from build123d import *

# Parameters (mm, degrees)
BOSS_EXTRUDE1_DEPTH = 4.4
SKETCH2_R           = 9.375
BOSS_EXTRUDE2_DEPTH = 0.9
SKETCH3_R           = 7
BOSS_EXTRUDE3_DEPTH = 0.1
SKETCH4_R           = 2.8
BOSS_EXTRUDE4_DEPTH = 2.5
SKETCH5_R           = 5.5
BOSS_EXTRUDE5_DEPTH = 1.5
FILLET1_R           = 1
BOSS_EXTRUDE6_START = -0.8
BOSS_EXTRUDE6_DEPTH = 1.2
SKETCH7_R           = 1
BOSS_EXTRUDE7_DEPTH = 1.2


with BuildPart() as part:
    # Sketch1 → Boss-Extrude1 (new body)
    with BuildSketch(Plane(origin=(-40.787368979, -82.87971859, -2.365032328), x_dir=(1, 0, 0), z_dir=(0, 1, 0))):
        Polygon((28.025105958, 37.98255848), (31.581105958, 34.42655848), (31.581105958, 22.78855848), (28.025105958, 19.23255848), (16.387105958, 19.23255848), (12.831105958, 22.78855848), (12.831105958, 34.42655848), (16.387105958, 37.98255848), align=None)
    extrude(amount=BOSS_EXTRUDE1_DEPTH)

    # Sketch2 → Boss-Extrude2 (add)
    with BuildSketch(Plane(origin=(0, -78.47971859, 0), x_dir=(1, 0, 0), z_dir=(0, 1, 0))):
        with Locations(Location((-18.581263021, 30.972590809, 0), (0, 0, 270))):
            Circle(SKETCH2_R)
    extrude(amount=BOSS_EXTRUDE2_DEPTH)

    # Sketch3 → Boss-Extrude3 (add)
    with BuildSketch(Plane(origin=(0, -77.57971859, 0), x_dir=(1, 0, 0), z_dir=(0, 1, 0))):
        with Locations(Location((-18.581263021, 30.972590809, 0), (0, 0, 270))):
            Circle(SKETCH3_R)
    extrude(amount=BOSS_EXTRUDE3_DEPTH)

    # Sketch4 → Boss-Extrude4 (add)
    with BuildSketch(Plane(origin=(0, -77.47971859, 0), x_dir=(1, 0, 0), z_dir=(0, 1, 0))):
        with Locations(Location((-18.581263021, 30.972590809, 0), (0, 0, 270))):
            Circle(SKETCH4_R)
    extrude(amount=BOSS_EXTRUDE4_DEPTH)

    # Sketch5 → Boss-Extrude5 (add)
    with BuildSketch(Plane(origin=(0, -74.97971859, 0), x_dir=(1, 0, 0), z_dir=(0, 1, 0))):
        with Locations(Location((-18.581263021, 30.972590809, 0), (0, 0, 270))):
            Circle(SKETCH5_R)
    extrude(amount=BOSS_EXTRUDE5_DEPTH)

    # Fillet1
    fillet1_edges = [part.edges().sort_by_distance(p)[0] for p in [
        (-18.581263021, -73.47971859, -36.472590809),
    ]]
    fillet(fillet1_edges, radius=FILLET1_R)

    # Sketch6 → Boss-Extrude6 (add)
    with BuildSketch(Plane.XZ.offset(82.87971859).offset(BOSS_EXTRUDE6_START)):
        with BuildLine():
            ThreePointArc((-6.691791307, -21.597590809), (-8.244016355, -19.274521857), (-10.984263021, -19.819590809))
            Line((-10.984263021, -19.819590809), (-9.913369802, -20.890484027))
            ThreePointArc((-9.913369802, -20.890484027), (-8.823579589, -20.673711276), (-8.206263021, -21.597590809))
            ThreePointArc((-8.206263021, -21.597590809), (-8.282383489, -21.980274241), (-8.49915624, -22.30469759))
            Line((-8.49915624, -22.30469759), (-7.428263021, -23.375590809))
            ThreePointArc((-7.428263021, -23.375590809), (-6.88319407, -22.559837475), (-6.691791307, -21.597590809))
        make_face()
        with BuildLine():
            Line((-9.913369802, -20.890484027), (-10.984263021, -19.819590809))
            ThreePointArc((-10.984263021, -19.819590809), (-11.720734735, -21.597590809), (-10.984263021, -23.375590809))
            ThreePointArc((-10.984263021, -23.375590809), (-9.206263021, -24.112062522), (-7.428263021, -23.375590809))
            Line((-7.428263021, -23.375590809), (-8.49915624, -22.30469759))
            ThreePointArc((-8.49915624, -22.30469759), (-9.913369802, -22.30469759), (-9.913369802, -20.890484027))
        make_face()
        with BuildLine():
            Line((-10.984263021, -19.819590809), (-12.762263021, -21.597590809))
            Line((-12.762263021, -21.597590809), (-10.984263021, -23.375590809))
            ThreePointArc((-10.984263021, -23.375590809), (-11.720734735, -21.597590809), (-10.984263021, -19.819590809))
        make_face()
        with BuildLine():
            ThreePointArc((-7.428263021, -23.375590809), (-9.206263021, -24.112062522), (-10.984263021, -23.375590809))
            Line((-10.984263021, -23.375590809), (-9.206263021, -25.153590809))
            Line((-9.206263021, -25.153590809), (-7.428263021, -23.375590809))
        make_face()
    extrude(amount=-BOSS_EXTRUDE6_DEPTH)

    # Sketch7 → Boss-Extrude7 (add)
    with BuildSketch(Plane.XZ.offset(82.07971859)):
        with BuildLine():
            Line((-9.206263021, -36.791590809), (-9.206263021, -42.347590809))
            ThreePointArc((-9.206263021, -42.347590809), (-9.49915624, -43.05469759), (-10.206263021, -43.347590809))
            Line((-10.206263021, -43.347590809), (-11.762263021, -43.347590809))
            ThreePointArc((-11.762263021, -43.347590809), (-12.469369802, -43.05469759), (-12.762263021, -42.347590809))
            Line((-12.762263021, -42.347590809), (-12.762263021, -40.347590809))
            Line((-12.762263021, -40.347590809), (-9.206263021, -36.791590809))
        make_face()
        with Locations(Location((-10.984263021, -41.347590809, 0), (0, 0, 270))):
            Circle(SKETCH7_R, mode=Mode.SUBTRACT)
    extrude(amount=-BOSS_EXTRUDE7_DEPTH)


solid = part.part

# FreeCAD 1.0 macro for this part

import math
import FreeCAD as App
import Part
import Sketcher
from FreeCAD import Vector
Q = App.Units.Quantity


def edges_at(feature, points):
    """Names of the edges that pass closest to the given points."""
    edges = feature.Shape.Edges
    near = lambda p: min(range(len(edges)), key=lambda i: edges[i].distToShape(Part.Vertex(*p))[0])
    return sorted({f"Edge{near(p) + 1}" for p in points})

doc = App.newDocument("Part")
params = doc.addObject("Spreadsheet::Sheet", "Params")
for row, (alias, value) in enumerate([
    ("pad1_length", "4.4 mm"),
    ("sketch2_diameter", "18.75 mm"),
    ("pad2_length", "0.9 mm"),
    ("sketch3_diameter", "14 mm"),
    ("pad3_length", "0.1 mm"),
    ("sketch4_diameter", "5.6 mm"),
    ("pad4_length", "2.5 mm"),
    ("sketch5_diameter", "11 mm"),
    ("pad5_length", "1.5 mm"),
    ("fillet_radius", "1 mm"),
    ("sketch6_radius", "1 mm"),
    ("pad6_length", "1.2 mm"),
    ("sketch7_diameter", "2 mm"),
    ("sketch7_height", "2 mm"),
    ("pad7_length", "1.2 mm"),
], start=1):
    params.set(f"A{row}", alias)
    params.set(f"B{row}", "=" + value)
    params.setAlias(f"B{row}", alias)

body = doc.addObject("PartDesign::Body", "Body")

sketch1 = doc.addObject("Sketcher::SketchObject", "Sketch")
body.addObject(sketch1)
sketch1.AttachmentSupport = (doc.XZ_Plane, [""])
sketch1.MapMode = "FlatFace"
sketch1.AttachmentOffset = App.Placement(Vector(0, 0, 82.879719), App.Rotation())
sketch1.addGeometry([
    Part.LineSegment(Vector(-9.206263, -36.791591, 0), Vector(-12.762263, -40.347591, 0)),
    Part.LineSegment(Vector(-12.762263, -40.347591, 0), Vector(-24.400263, -40.347591, 0)),
    Part.LineSegment(Vector(-24.400263, -40.347591, 0), Vector(-27.956263, -36.791591, 0)),
    Part.LineSegment(Vector(-27.956263, -36.791591, 0), Vector(-27.956263, -25.153591, 0)),
    Part.LineSegment(Vector(-27.956263, -25.153591, 0), Vector(-24.400263, -21.597591, 0)),
    Part.LineSegment(Vector(-24.400263, -21.597591, 0), Vector(-12.762263, -21.597591, 0)),
    Part.LineSegment(Vector(-12.762263, -21.597591, 0), Vector(-9.206263, -25.153591, 0)),
    Part.LineSegment(Vector(-9.206263, -25.153591, 0), Vector(-9.206263, -36.791591, 0)),
], False)
sketch1.addConstraint([
    Sketcher.Constraint("Coincident", 0, 2, 1, 1),
    Sketcher.Constraint("Coincident", 1, 2, 2, 1),
    Sketcher.Constraint("Coincident", 2, 2, 3, 1),
    Sketcher.Constraint("Coincident", 3, 2, 4, 1),
    Sketcher.Constraint("Coincident", 4, 2, 5, 1),
    Sketcher.Constraint("Coincident", 5, 2, 6, 1),
    Sketcher.Constraint("Coincident", 6, 2, 7, 1),
    Sketcher.Constraint("Coincident", 7, 2, 0, 1),
    Sketcher.Constraint("Horizontal", 1),
    Sketcher.Constraint("Vertical", 3),
    Sketcher.Constraint("Horizontal", 5),
    Sketcher.Constraint("Vertical", 7),
    Sketcher.Constraint("Perpendicular", 0, 2),
    Sketcher.Constraint("Perpendicular", 2, 4),
    Sketcher.Constraint("Perpendicular", 4, 6),
    Sketcher.Constraint("Horizontal", 3, 2, 6, 2),
    Sketcher.Constraint("Horizontal", 2, 2, 7, 2),
    Sketcher.Constraint("Vertical", 1, 2, 4, 2),
    Sketcher.Constraint("Vertical", 0, 2, 5, 2),
    Sketcher.Constraint("Equal", 5, 3),
    Sketcher.Constraint("DistanceX", 1, 2, 1, 1, 11.638),
    Sketcher.Constraint("DistanceY", 1, 2, 4, 2, 18.75),
    Sketcher.Constraint("DistanceY", 0, 2, -1, 1, 40.347591),
    Sketcher.Constraint("DistanceX", 0, 2, -1, 1, 12.762263),
])
pad1 = doc.addObject("PartDesign::Pad", "Pad")
body.addObject(pad1)
pad1.Profile = sketch1
pad1.setExpression("Length", "Params.pad1_length")
pad1.Reversed = True

sketch2 = doc.addObject("Sketcher::SketchObject", "Sketch001")
body.addObject(sketch2)
sketch2.AttachmentSupport = (doc.XZ_Plane, [""])
sketch2.MapMode = "FlatFace"
sketch2.AttachmentOffset = App.Placement(Vector(0, 0, 78.479719), App.Rotation())
sketch2.addGeometry(Part.Circle(Vector(-18.581263, -30.972591, 0), Vector(0, 0, 1), 9.375), False)
sketch2.addConstraint([
    Sketcher.Constraint("Diameter", 0, 18.75),
    Sketcher.Constraint("DistanceY", 0, 3, -1, 1, 30.972591),
    Sketcher.Constraint("DistanceX", 0, 3, -1, 1, 18.581263),
])
sketch2.setExpression("Constraints[0]", "Params.sketch2_diameter")
pad2 = doc.addObject("PartDesign::Pad", "Pad001")
body.addObject(pad2)
pad2.Profile = sketch2
pad2.setExpression("Length", "Params.pad2_length")
pad2.Reversed = True

sketch3 = doc.addObject("Sketcher::SketchObject", "Sketch002")
body.addObject(sketch3)
sketch3.AttachmentSupport = (doc.XZ_Plane, [""])
sketch3.MapMode = "FlatFace"
sketch3.AttachmentOffset = App.Placement(Vector(0, 0, 77.579719), App.Rotation())
sketch3.addGeometry(Part.Circle(Vector(-18.581263, -30.972591, 0), Vector(0, 0, 1), 7), False)
sketch3.addConstraint([
    Sketcher.Constraint("Diameter", 0, 14.0),
    Sketcher.Constraint("DistanceY", 0, 3, -1, 1, 30.972591),
    Sketcher.Constraint("DistanceX", 0, 3, -1, 1, 18.581263),
])
sketch3.setExpression("Constraints[0]", "Params.sketch3_diameter")
pad3 = doc.addObject("PartDesign::Pad", "Pad002")
body.addObject(pad3)
pad3.Profile = sketch3
pad3.setExpression("Length", "Params.pad3_length")
pad3.Reversed = True

sketch4 = doc.addObject("Sketcher::SketchObject", "Sketch003")
body.addObject(sketch4)
sketch4.AttachmentSupport = (doc.XZ_Plane, [""])
sketch4.MapMode = "FlatFace"
sketch4.AttachmentOffset = App.Placement(Vector(0, 0, 77.479719), App.Rotation())
sketch4.addGeometry(Part.Circle(Vector(-18.581263, -30.972591, 0), Vector(0, 0, 1), 2.8), False)
sketch4.addConstraint([
    Sketcher.Constraint("Diameter", 0, 5.6),
    Sketcher.Constraint("DistanceY", 0, 3, -1, 1, 30.972591),
    Sketcher.Constraint("DistanceX", 0, 3, -1, 1, 18.581263),
])
sketch4.setExpression("Constraints[0]", "Params.sketch4_diameter")
pad4 = doc.addObject("PartDesign::Pad", "Pad003")
body.addObject(pad4)
pad4.Profile = sketch4
pad4.setExpression("Length", "Params.pad4_length")
pad4.Reversed = True

sketch5 = doc.addObject("Sketcher::SketchObject", "Sketch004")
body.addObject(sketch5)
sketch5.AttachmentSupport = (doc.XZ_Plane, [""])
sketch5.MapMode = "FlatFace"
sketch5.AttachmentOffset = App.Placement(Vector(0, 0, 74.979719), App.Rotation())
sketch5.addGeometry(Part.Circle(Vector(-18.581263, -30.972591, 0), Vector(0, 0, 1), 5.5), False)
sketch5.addConstraint([
    Sketcher.Constraint("Diameter", 0, 11.0),
    Sketcher.Constraint("DistanceY", 0, 3, -1, 1, 30.972591),
    Sketcher.Constraint("DistanceX", 0, 3, -1, 1, 18.581263),
])
sketch5.setExpression("Constraints[0]", "Params.sketch5_diameter")
pad5 = doc.addObject("PartDesign::Pad", "Pad004")
body.addObject(pad5)
pad5.Profile = sketch5
pad5.setExpression("Length", "Params.pad5_length")
pad5.Reversed = True
doc.recompute()

fillet = doc.addObject("PartDesign::Fillet", "Fillet")
body.addObject(fillet)
fillet.Base = (pad5, edges_at(pad5, [(-18.581, -73.48, -36.473)]))
fillet.setExpression("Radius", "Params.fillet_radius")

sketch6 = doc.addObject("Sketcher::SketchObject", "Sketch005")
body.addObject(sketch6)
sketch6.AttachmentSupport = (doc.XZ_Plane, [""])
sketch6.MapMode = "FlatFace"
sketch6.AttachmentOffset = App.Placement(Vector(0, 0, 82.079719), App.Rotation())
sketch6.addGeometry([
    Part.ArcOfCircle(Part.Circle(Vector(-9.206263, -21.597591, 0), Vector(0, 0, 1), 2.514472), math.radians(0), math.radians(135)),
    Part.LineSegment(Vector(-10.984263, -19.819591, 0), Vector(-12.762263, -21.597591, 0)),
    Part.LineSegment(Vector(-12.762263, -21.597591, 0), Vector(-9.206263, -25.153591, 0)),
    Part.LineSegment(Vector(-9.206263, -25.153591, 0), Vector(-7.428263, -23.375591, 0)),
    Part.ArcOfCircle(Part.Circle(Vector(-9.206263, -21.597591, 0), Vector(0, 0, 1), 2.514472), math.radians(-45), math.radians(0)),
    Part.ArcOfCircle(Part.Circle(Vector(-9.206263, -21.597591, 0), Vector(0, 0, 1), 1), math.radians(-45), math.radians(0)),
    Part.ArcOfCircle(Part.Circle(Vector(-9.206263, -21.597591, 0), Vector(0, 0, 1), 1), math.radians(135), math.radians(315)),
    Part.ArcOfCircle(Part.Circle(Vector(-9.206263, -21.597591, 0), Vector(0, 0, 1), 1), math.radians(0), math.radians(135)),
], False)
sketch6.addConstraint([
    Sketcher.Constraint("Tangent", 0, 2, 1, 1),
    Sketcher.Constraint("Coincident", 1, 2, 2, 1),
    Sketcher.Constraint("Coincident", 2, 2, 3, 1),
    Sketcher.Constraint("Tangent", 3, 2, 4, 1),
    Sketcher.Constraint("Tangent", 4, 2, 0, 1),
    Sketcher.Constraint("Tangent", 5, 1, 6, 2),
    Sketcher.Constraint("Tangent", 6, 1, 7, 2),
    Sketcher.Constraint("Tangent", 7, 1, 5, 2),
    Sketcher.Constraint("Coincident", 5, 3, 0, 3),
    Sketcher.Constraint("Equal", 0, 4),
    Sketcher.Constraint("Perpendicular", 1, 2),
    Sketcher.Constraint("Perpendicular", 2, 3),
    Sketcher.Constraint("Horizontal", 7, 3, 1, 2),
    Sketcher.Constraint("Horizontal", 1, 2, 4, 2),
    Sketcher.Constraint("Horizontal", 4, 2, 7, 1),
    Sketcher.Constraint("Vertical", 7, 3, 2, 2),
    Sketcher.Constraint("Radius", 5, 1.0),
    Sketcher.Constraint("Radius", 0, 2.514472),
    Sketcher.Constraint("DistanceY", 0, 3, -1, 1, 21.597591),
    Sketcher.Constraint("DistanceX", 4, 2, -1, 1, 6.691791),
    Sketcher.Constraint("DistanceX", 6, 1, -1, 1, 9.91337),
    Sketcher.Constraint("DistanceX", 5, 1, -1, 1, 8.499156),
])
sketch6.setExpression("Constraints[16]", "Params.sketch6_radius")
pad6 = doc.addObject("PartDesign::Pad", "Pad005")
body.addObject(pad6)
pad6.Profile = sketch6
pad6.setExpression("Length", "Params.pad6_length")
pad6.Reversed = True

sketch7 = doc.addObject("Sketcher::SketchObject", "Sketch006")
body.addObject(sketch7)
sketch7.AttachmentSupport = (doc.XZ_Plane, [""])
sketch7.MapMode = "FlatFace"
sketch7.AttachmentOffset = App.Placement(Vector(0, 0, 82.079719), App.Rotation())
sketch7.addGeometry([
    Part.LineSegment(Vector(-9.206263, -42.347591, 0), Vector(-9.206263, -36.791591, 0)),
    Part.LineSegment(Vector(-9.206263, -36.791591, 0), Vector(-12.762263, -40.347591, 0)),
    Part.LineSegment(Vector(-12.762263, -40.347591, 0), Vector(-12.762263, -42.347591, 0)),
    Part.ArcOfCircle(Part.Circle(Vector(-11.762263, -42.347591, 0), Vector(0, 0, 1), 1), math.radians(-180), math.radians(-90)),
    Part.LineSegment(Vector(-11.762263, -43.347591, 0), Vector(-10.206263, -43.347591, 0)),
    Part.ArcOfCircle(Part.Circle(Vector(-10.206263, -42.347591, 0), Vector(0, 0, 1), 1), math.radians(-90), math.radians(0)),
    Part.Circle(Vector(-10.984263, -41.347591, 0), Vector(0, 0, 1), 1),
], False)
sketch7.addConstraint([
    Sketcher.Constraint("Coincident", 0, 2, 1, 1),
    Sketcher.Constraint("Coincident", 1, 2, 2, 1),
    Sketcher.Constraint("Tangent", 2, 2, 3, 1),
    Sketcher.Constraint("Tangent", 3, 2, 4, 1),
    Sketcher.Constraint("Tangent", 4, 2, 5, 1),
    Sketcher.Constraint("Tangent", 5, 2, 0, 1),
    Sketcher.Constraint("Vertical", 0),
    Sketcher.Constraint("Vertical", 2),
    Sketcher.Constraint("Horizontal", 4),
    Sketcher.Constraint("Equal", 3, 5),
    Sketcher.Constraint("Equal", 5, 6),
    Sketcher.Constraint("Diameter", 6, 2.0),
    Sketcher.Constraint("DistanceY", 2, 2, 2, 1, 2.0),
    Sketcher.Constraint("Angle", 1, Q("-135 deg")),
    Sketcher.Constraint("DistanceY", 3, 3, 6, 3, 1.0),
    Sketcher.Constraint("DistanceX", 4, 1, 4, 2, 1.556),
    Sketcher.Constraint("DistanceX", 3, 3, 6, 3, 0.778),
    Sketcher.Constraint("DistanceY", 3, 3, -1, 1, 42.347591),
    Sketcher.Constraint("DistanceX", 3, 3, -1, 1, 11.762263),
])
sketch7.setExpression("Constraints[11]", "Params.sketch7_diameter")
sketch7.setExpression("Constraints[12]", "Params.sketch7_height")
pad7 = doc.addObject("PartDesign::Pad", "Pad006")
body.addObject(pad7)
pad7.Profile = sketch7
pad7.setExpression("Length", "Params.pad7_length")
pad7.Reversed = True

doc.recompute()
